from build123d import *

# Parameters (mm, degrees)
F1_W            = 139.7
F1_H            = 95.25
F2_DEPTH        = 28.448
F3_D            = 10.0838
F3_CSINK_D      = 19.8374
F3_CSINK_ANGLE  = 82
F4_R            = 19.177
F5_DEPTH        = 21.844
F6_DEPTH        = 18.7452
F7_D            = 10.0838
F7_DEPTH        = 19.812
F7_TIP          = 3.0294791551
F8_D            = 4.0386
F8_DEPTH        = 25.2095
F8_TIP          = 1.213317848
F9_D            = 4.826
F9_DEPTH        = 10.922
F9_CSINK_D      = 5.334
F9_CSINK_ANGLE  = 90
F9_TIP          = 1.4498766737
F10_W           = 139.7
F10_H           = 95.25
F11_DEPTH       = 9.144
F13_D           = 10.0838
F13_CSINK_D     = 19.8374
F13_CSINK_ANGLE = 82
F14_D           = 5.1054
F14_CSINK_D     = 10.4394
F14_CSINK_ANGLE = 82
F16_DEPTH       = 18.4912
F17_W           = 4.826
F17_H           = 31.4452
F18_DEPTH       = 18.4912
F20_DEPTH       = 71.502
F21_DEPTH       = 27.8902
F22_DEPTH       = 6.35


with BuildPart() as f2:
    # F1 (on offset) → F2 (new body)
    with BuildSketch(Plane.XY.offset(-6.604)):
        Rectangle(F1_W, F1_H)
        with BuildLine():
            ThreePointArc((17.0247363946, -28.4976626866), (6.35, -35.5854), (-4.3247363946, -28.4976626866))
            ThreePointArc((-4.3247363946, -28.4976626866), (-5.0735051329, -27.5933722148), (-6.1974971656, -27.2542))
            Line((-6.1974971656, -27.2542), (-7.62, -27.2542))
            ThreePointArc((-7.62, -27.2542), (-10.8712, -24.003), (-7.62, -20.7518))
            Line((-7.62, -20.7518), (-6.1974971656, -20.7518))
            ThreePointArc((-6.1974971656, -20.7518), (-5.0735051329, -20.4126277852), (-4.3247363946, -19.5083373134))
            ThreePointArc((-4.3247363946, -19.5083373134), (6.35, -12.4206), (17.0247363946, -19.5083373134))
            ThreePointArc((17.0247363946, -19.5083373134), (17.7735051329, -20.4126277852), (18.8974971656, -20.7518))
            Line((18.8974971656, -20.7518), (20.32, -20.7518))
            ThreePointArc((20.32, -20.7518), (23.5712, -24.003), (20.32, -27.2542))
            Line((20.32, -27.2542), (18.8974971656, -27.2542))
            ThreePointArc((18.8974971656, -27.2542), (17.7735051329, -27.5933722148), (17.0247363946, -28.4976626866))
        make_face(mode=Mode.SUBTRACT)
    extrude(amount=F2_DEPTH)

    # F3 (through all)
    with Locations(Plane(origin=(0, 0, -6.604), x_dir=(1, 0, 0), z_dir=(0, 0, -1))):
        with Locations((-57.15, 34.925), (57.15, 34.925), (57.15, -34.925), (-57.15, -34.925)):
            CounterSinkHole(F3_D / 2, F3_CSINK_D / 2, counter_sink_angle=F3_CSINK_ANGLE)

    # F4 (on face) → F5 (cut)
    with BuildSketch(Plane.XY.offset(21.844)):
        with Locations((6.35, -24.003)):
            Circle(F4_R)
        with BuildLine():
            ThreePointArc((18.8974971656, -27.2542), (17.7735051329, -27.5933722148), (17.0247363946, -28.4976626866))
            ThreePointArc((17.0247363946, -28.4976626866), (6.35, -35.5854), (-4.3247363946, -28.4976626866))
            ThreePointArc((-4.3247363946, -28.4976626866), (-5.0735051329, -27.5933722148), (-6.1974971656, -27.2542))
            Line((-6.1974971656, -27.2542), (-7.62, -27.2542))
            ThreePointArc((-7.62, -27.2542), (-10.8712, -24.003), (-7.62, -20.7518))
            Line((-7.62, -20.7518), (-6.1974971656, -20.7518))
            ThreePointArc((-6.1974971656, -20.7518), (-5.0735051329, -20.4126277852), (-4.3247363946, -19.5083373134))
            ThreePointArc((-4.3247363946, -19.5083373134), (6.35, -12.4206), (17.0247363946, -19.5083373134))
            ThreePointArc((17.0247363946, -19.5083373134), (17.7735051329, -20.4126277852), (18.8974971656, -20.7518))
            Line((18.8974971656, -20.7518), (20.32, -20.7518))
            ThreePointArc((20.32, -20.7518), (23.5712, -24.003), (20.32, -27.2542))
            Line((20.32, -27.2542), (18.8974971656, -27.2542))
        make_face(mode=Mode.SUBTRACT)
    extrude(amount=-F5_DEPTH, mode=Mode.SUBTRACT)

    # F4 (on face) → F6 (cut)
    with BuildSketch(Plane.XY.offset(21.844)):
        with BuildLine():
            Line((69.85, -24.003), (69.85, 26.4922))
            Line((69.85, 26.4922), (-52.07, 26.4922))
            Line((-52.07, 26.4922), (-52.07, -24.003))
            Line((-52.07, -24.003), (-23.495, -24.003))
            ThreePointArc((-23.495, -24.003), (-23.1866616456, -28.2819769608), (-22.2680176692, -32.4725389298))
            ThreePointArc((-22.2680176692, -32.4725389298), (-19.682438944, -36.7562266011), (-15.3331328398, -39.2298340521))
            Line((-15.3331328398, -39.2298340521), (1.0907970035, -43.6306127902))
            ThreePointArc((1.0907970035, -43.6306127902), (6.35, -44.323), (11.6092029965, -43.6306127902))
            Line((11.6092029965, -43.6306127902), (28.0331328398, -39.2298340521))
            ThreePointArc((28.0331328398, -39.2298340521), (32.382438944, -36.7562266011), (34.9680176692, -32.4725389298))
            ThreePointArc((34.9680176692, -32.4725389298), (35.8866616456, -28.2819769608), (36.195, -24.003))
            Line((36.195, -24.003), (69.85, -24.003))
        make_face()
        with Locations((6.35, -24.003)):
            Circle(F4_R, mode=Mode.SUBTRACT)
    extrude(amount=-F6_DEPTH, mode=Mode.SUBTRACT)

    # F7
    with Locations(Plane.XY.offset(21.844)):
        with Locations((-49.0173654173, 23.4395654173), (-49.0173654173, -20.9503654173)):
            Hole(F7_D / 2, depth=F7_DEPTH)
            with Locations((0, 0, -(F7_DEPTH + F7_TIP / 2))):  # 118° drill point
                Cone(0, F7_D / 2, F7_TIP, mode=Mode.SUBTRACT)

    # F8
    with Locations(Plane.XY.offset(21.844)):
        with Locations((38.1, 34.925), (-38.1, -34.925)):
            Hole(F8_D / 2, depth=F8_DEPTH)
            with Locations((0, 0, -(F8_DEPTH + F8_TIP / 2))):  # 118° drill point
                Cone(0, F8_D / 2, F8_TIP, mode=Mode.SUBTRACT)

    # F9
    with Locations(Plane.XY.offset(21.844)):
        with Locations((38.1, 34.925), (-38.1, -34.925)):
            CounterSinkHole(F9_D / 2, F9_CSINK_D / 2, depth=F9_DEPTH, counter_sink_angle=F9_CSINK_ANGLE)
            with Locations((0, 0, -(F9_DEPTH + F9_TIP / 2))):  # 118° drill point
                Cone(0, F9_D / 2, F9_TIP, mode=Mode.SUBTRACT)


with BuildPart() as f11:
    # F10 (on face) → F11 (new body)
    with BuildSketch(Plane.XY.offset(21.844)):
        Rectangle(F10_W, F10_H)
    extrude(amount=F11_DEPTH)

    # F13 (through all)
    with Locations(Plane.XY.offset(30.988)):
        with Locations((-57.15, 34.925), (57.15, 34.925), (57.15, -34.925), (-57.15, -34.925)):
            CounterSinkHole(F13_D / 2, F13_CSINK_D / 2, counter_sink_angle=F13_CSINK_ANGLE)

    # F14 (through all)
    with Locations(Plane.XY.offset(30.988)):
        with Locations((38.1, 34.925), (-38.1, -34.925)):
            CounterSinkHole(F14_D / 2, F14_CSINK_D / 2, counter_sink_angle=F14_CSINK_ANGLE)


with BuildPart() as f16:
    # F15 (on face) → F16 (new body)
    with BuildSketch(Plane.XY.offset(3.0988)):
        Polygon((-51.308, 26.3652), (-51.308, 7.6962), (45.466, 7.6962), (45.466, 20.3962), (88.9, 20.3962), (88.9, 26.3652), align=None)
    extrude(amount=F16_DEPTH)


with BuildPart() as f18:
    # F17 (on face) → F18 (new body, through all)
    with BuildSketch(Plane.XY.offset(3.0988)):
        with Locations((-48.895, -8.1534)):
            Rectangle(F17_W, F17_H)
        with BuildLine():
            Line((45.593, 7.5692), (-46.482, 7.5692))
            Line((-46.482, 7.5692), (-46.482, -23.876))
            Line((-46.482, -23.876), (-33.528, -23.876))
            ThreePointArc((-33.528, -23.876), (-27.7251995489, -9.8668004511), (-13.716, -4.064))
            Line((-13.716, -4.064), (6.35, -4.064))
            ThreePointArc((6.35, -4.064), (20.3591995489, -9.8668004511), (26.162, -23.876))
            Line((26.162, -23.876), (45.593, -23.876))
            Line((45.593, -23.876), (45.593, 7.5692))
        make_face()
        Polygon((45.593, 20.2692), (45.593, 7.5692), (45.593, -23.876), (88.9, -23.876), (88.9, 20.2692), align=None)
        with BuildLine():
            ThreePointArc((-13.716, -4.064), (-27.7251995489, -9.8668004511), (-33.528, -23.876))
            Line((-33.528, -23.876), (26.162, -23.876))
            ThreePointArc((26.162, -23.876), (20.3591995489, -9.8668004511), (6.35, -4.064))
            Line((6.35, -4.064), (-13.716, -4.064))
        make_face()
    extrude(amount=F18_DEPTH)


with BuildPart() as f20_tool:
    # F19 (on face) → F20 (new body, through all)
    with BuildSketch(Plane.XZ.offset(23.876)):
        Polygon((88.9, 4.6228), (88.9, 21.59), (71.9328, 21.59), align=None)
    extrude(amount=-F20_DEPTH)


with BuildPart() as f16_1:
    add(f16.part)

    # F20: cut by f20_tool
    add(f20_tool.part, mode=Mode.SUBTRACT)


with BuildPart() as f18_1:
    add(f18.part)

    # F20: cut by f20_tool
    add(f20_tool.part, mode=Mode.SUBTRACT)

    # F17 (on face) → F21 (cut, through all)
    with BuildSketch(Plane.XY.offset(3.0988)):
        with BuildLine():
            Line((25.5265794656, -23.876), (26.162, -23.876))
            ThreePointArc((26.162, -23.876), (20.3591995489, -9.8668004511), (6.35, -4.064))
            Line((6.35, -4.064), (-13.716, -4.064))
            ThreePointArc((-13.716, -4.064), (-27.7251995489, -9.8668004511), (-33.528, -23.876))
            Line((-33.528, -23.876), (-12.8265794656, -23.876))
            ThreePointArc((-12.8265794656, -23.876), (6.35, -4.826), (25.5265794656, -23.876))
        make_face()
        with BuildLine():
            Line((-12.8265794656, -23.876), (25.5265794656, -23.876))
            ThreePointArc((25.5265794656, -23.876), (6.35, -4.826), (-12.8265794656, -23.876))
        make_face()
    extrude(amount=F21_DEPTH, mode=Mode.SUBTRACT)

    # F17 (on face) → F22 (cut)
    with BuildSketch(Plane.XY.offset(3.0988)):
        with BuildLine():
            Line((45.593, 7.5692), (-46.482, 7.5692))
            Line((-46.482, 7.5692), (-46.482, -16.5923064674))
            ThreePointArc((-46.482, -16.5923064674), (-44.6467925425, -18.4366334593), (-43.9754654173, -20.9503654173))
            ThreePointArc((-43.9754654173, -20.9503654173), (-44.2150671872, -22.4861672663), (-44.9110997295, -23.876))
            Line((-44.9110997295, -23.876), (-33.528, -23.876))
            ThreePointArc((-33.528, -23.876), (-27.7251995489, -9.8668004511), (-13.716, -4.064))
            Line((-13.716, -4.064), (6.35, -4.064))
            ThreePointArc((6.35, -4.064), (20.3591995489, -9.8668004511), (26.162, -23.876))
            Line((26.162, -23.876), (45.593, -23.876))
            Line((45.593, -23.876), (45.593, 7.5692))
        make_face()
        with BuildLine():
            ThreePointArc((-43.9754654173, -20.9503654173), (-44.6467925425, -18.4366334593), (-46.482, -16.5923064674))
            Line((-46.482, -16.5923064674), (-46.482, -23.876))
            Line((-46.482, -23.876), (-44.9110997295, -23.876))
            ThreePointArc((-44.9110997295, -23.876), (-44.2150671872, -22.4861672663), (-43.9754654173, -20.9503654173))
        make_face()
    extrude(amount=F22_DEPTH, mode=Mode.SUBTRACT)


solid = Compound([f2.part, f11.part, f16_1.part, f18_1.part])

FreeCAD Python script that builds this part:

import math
import FreeCAD as App
import Part
import Sketcher
Q = App.Units.Quantity

doc = App.newDocument("Part")
body = doc.addObject("PartDesign::Body", "Body")

sketch1 = body.newObject("Sketcher::SketchObject", "Sketch")
sketch1.AttachmentSupport = (doc.getObject("XY_Plane"), [""])
sketch1.MapMode = "FlatFace"
sketch1.AttachmentOffset = App.Placement(App.Vector(0, 0, -0.26 * 25.4), App.Rotation())
sketch1.addGeometry([
    Part.LineSegment(App.Vector(-69.8, 47.6, 0), App.Vector(-69.8, -47.6, 0)),
    Part.LineSegment(App.Vector(-69.8, -47.6, 0), App.Vector(69.8, -47.6, 0)),
    Part.LineSegment(App.Vector(69.8, -47.6, 0), App.Vector(69.8, 47.6, 0)),
    Part.LineSegment(App.Vector(69.8, 47.6, 0), App.Vector(-69.8, 47.6, 0)),
    Part.ArcOfCircle(Part.Circle(App.Vector(18.9, -29.3, 0), App.Vector(0, 0, 1), 2), math.radians(90), math.radians(157)),
    Part.ArcOfCircle(Part.Circle(App.Vector(6.3, -24, 0), App.Vector(0, 0, 1), 11.6), math.radians(-157), math.radians(-23)),
    Part.ArcOfCircle(Part.Circle(App.Vector(-6.2, -29.3, 0), App.Vector(0, 0, 1), 2), math.radians(23), math.radians(90)),
    Part.LineSegment(App.Vector(-6.2, -27.3, 0), App.Vector(-7.6, -27.3, 0)),
    Part.ArcOfCircle(Part.Circle(App.Vector(-7.6, -24, 0), App.Vector(0, 0, 1), 3.3), math.radians(90), math.radians(270)),
    Part.LineSegment(App.Vector(-7.6, -20.8, 0), App.Vector(-6.2, -20.8, 0)),
    Part.ArcOfCircle(Part.Circle(App.Vector(-6.2, -18.7, 0), App.Vector(0, 0, 1), 2), math.radians(-90), math.radians(-23)),
    Part.ArcOfCircle(Part.Circle(App.Vector(6.3, -24, 0), App.Vector(0, 0, 1), 11.6), math.radians(23), math.radians(157)),
    Part.ArcOfCircle(Part.Circle(App.Vector(18.9, -18.7, 0), App.Vector(0, 0, 1), 2), math.radians(-157), math.radians(-90)),
    Part.LineSegment(App.Vector(18.9, -20.8, 0), App.Vector(20.3, -20.8, 0)),
    Part.ArcOfCircle(Part.Circle(App.Vector(20.3, -24, 0), App.Vector(0, 0, 1), 3.3), math.radians(-90), math.radians(90)),
    Part.LineSegment(App.Vector(20.3, -27.3, 0), App.Vector(18.9, -27.3, 0)),
], False)
sketch1.addConstraint([
    Sketcher.Constraint("Coincident", 0, 2, 1, 1),
    Sketcher.Constraint("Coincident", 1, 2, 2, 1),
    Sketcher.Constraint("Coincident", 2, 2, 3, 1),
    Sketcher.Constraint("Coincident", 3, 2, 0, 1),
    Sketcher.Constraint("Tangent", 4, 2, 5, 2),
    Sketcher.Constraint("Tangent", 5, 1, 6, 1),
    Sketcher.Constraint("Tangent", 6, 2, 7, 1),
    Sketcher.Constraint("Tangent", 7, 2, 8, 2),
    Sketcher.Constraint("Tangent", 8, 1, 9, 1),
    Sketcher.Constraint("Tangent", 9, 2, 10, 1),
    Sketcher.Constraint("Tangent", 10, 2, 11, 2),
    Sketcher.Constraint("Tangent", 11, 1, 12, 1),
    Sketcher.Constraint("Tangent", 12, 2, 13, 1),
    Sketcher.Constraint("Tangent", 13, 2, 14, 2),
    Sketcher.Constraint("Tangent", 14, 1, 15, 1),
    Sketcher.Constraint("Tangent", 15, 2, 4, 1),
    Sketcher.Constraint("Vertical", 0),
    Sketcher.Constraint("Horizontal", 1),
    Sketcher.Constraint("Vertical", 2),
    Sketcher.Constraint("Horizontal", 3),
    Sketcher.Constraint("Horizontal", 7),
    Sketcher.Constraint("Horizontal", 9),
    Sketcher.Constraint("Horizontal", 13),
    Sketcher.Constraint("Horizontal", 15),
    Sketcher.Constraint("Coincident", 11, 3, 5, 3),
    Sketcher.Constraint("Equal", 4, 6),
    Sketcher.Constraint("Equal", 6, 10),
    Sketcher.Constraint("Equal", 5, 11),
    Sketcher.Constraint("Equal", 10, 12),
    Sketcher.Constraint("Equal", 8, 14),
    Sketcher.Constraint("Symmetric", 0, 2, 2, 2, -1, 1),
    Sketcher.Constraint("Horizontal", 4, 3, 6, 3),
    Sketcher.Constraint("Horizontal", 5, 3, 8, 3),
    Sketcher.Constraint("Equal", 9, 13),
    Sketcher.Constraint("Radius", 4, Q("0.08 in")),
    Sketcher.Constraint("DistanceX", 1, 1, 1, 2, Q("5.5 in")),
    Sketcher.Constraint("Radius", 5, Q("0.456 in")),
    Sketcher.Constraint("Radius", 8, Q("0.128 in")),
    Sketcher.Constraint("DistanceX", 0, 2, 5, 3, Q("3 in")),
    Sketcher.Constraint("DistanceY", 0, 2, 0, 1, Q("3.75 in")),
    Sketcher.Constraint("DistanceX", 8, 3, -1, 1, Q("0.3 in")),
    Sketcher.Constraint("DistanceY", 0, 2, 8, 3, Q("0.93 in")),
])
pad1 = body.newObject("PartDesign::Pad", "Pad")
pad1.Profile = sketch1
pad1.Length = Q("1.12 in")

sketch2 = body.newObject("Sketcher::SketchObject", "Sketch001")
sketch2.AttachmentSupport = (doc.getObject("XY_Plane"), [""])
sketch2.MapMode = "FlatFace"
sketch2.AttachmentOffset = App.Placement(App.Vector(0, 0, -0.26 * 25.4), App.Rotation())
sketch2.addGeometry([
    Part.Circle(App.Vector(-57, -35, 0), App.Vector(0, 0, 1), 5),
    Part.Circle(App.Vector(57, -35, 0), App.Vector(0, 0, 1), 5),
    Part.Circle(App.Vector(57, 35, 0), App.Vector(0, 0, 1), 5),
    Part.Circle(App.Vector(-57, 35, 0), App.Vector(0, 0, 1), 5),
], False)
sketch2.addConstraint([
    Sketcher.Constraint("Equal", 0, 1),
    Sketcher.Constraint("Equal", 1, 2),
    Sketcher.Constraint("Equal", 2, 3),
    Sketcher.Constraint("Symmetric", 0, 3, 2, 3, -1, 1),
    Sketcher.Constraint("Symmetric", 1, 3, 3, 3, -1, 1),
    Sketcher.Constraint("Symmetric", 0, 3, 1, 3, -2),
    Sketcher.Constraint("Diameter", 0, Q("0.397 in")),
    Sketcher.Constraint("DistanceX", 0, 3, 1, 3, Q("4.5 in")),
    Sketcher.Constraint("DistanceY", 1, 3, 2, 3, Q("2.75 in")),
])
doc.recompute()
hole = body.newObject("PartDesign::Hole", "Hole")
hole.Profile = sketch2
hole.ThreadType = "None"
hole.Diameter = Q("0.397 in")
hole.DepthType = "ThroughAll"
hole.HoleCutType = "Countersink"
hole.HoleCutDiameter = Q("0.781 in")
hole.HoleCutCountersinkAngle = 82
hole.Reversed = True

sketch3 = body.newObject("Sketcher::SketchObject", "Sketch002")
sketch3.AttachmentSupport = (doc.getObject("XY_Plane"), [""])
sketch3.MapMode = "FlatFace"
sketch3.AttachmentOffset = App.Placement(App.Vector(0, 0, 0.86 * 25.4), App.Rotation())
sketch3.addGeometry([
    Part.Circle(App.Vector(6.3, -24, 0), App.Vector(0, 0, 1), 19.2),
    Part.LineSegment(App.Vector(20.3, -27.3, 0), App.Vector(18.9, -27.3, 0)),
    Part.ArcOfCircle(Part.Circle(App.Vector(18.9, -29.3, 0), App.Vector(0, 0, 1), 2), math.radians(90), math.radians(157)),
    Part.ArcOfCircle(Part.Circle(App.Vector(6.3, -24, 0), App.Vector(0, 0, 1), 11.6), math.radians(-157), math.radians(-23)),
    Part.ArcOfCircle(Part.Circle(App.Vector(-6.2, -29.3, 0), App.Vector(0, 0, 1), 2), math.radians(23), math.radians(90)),
    Part.LineSegment(App.Vector(-6.2, -27.3, 0), App.Vector(-7.6, -27.3, 0)),
    Part.ArcOfCircle(Part.Circle(App.Vector(-7.6, -24, 0), App.Vector(0, 0, 1), 3.3), math.radians(90), math.radians(270)),
    Part.LineSegment(App.Vector(-7.6, -20.8, 0), App.Vector(-6.2, -20.8, 0)),
    Part.ArcOfCircle(Part.Circle(App.Vector(-6.2, -18.7, 0), App.Vector(0, 0, 1), 2), math.radians(-90), math.radians(-23)),
    Part.ArcOfCircle(Part.Circle(App.Vector(6.3, -24, 0), App.Vector(0, 0, 1), 11.6), math.radians(23), math.radians(157)),
    Part.ArcOfCircle(Part.Circle(App.Vector(18.9, -18.7, 0), App.Vector(0, 0, 1), 2), math.radians(-157), math.radians(-90)),
    Part.LineSegment(App.Vector(18.9, -20.8, 0), App.Vector(20.3, -20.8, 0)),
    Part.ArcOfCircle(Part.Circle(App.Vector(20.3, -24, 0), App.Vector(0, 0, 1), 3.3), math.radians(-90), math.radians(90)),
], False)
sketch3.addConstraint([
    Sketcher.Constraint("Tangent", 1, 2, 2, 1),
    Sketcher.Constraint("Tangent", 2, 2, 3, 2),
    Sketcher.Constraint("Tangent", 3, 1, 4, 1),
    Sketcher.Constraint("Tangent", 4, 2, 5, 1),
    Sketcher.Constraint("Tangent", 5, 2, 6, 2),
    Sketcher.Constraint("Tangent", 6, 1, 7, 1),
    Sketcher.Constraint("Tangent", 7, 2, 8, 1),
    Sketcher.Constraint("Tangent", 8, 2, 9, 2),
    Sketcher.Constraint("Tangent", 9, 1, 10, 1),
    Sketcher.Constraint("Tangent", 10, 2, 11, 1),
    Sketcher.Constraint("Tangent", 11, 2, 12, 2),
    Sketcher.Constraint("Tangent", 12, 1, 1, 1),
    Sketcher.Constraint("Horizontal", 1),
    Sketcher.Constraint("Horizontal", 5),
    Sketcher.Constraint("Horizontal", 7),
    Sketcher.Constraint("Horizontal", 11),
    Sketcher.Constraint("Coincident", 3, 3, 0, 3),
    Sketcher.Constraint("Coincident", 9, 3, 0, 3),
    Sketcher.Constraint("Equal", 2, 4),
    Sketcher.Constraint("Equal", 4, 8),
    Sketcher.Constraint("Equal", 3, 9),
    Sketcher.Constraint("Equal", 8, 10),
    Sketcher.Constraint("Equal", 6, 12),
    Sketcher.Constraint("Horizontal", 2, 3, 4, 3),
    Sketcher.Constraint("Horizontal", 3, 3, 6, 3),
    Sketcher.Constraint("Equal", 1, 5),
    Sketcher.Constraint("Diameter", 0, Q("1.51 in")),
    Sketcher.Constraint("Radius", 2, Q("0.08 in")),
    Sketcher.Constraint("Radius", 3, Q("0.456 in")),
    Sketcher.Constraint("Radius", 6, Q("0.128 in")),
    Sketcher.Constraint("DistanceX", 6, 3, -1, 1, Q("0.3 in")),
    Sketcher.Constraint("DistanceX", -1, 1, 12, 3, Q("0.8 in")),
    Sketcher.Constraint("DistanceY", 0, 3, -1, 1, Q("0.945 in")),
])
pocket1 = body.newObject("PartDesign::Pocket", "Pocket")
pocket1.Profile = sketch3
pocket1.Length = Q("0.86 in")

sketch4 = body.newObject("Sketcher::SketchObject", "Sketch003")
sketch4.AttachmentSupport = (doc.getObject("XY_Plane"), [""])
sketch4.MapMode = "FlatFace"
sketch4.AttachmentOffset = App.Placement(App.Vector(0, 0, 0.86 * 25.4), App.Rotation())
sketch4.addGeometry([
    Part.LineSegment(App.Vector(70, -24, 0), App.Vector(70, 26, 0)),
    Part.LineSegment(App.Vector(70, 26, 0), App.Vector(-52, 26, 0)),
    Part.LineSegment(App.Vector(-52, 26, 0), App.Vector(-52, -24, 0)),
    Part.LineSegment(App.Vector(-52, -24, 0), App.Vector(-23, -24, 0)),
    Part.ArcOfCircle(Part.Circle(App.Vector(6, -24, 0), App.Vector(0, 0, 1), 30), math.radians(180), math.radians(196.49)),
    Part.ArcOfCircle(Part.Circle(App.Vector(-13, -30, 0), App.Vector(0, 0, 1), 10), math.radians(-164), math.radians(-105)),
    Part.LineSegment(App.Vector(-15, -39, 0), App.Vector(1, -44, 0)),
    Part.ArcOfCircle(Part.Circle(App.Vector(6, -24, 0), App.Vector(0, 0, 1), 20), math.radians(-105), math.radians(-75)),
    Part.LineSegment(App.Vector(12, -44, 0), App.Vector(28, -39, 0)),
    Part.ArcOfCircle(Part.Circle(App.Vector(25, -30, 0), App.Vector(0, 0, 1), 10), math.radians(-75), math.radians(-16)),
    Part.ArcOfCircle(Part.Circle(App.Vector(6, -24, 0), App.Vector(0, 0, 1), 30), math.radians(-16.49), math.radians(0)),
    Part.LineSegment(App.Vector(36, -24, 0), App.Vector(70, -24, 0)),
    Part.Circle(App.Vector(6, -24, 0), App.Vector(0, 0, 1), 19),
], False)
sketch4.addConstraint([
    Sketcher.Constraint("Coincident", 0, 2, 1, 1),
    Sketcher.Constraint("Coincident", 1, 2, 2, 1),
    Sketcher.Constraint("Coincident", 2, 2, 3, 1),
    Sketcher.Constraint("Coincident", 3, 2, 4, 1),
    Sketcher.Constraint("Tangent", 4, 2, 5, 1),
    Sketcher.Constraint("Tangent", 5, 2, 6, 1),
    Sketcher.Constraint("Tangent", 6, 2, 7, 1),
    Sketcher.Constraint("Tangent", 7, 2, 8, 1),
    Sketcher.Constraint("Tangent", 8, 2, 9, 1),
    Sketcher.Constraint("Tangent", 9, 2, 10, 1),
    Sketcher.Constraint("Coincident", 10, 2, 11, 1),
    Sketcher.Constraint("Coincident", 11, 2, 0, 1),
    Sketcher.Constraint("Vertical", 0),
    Sketcher.Constraint("Horizontal", 1),
    Sketcher.Constraint("Vertical", 2),
    Sketcher.Constraint("Horizontal", 3),
    Sketcher.Constraint("Horizontal", 11),
    Sketcher.Constraint("Coincident", 7, 3, 4, 3),
    Sketcher.Constraint("Coincident", 10, 3, 4, 3),
    Sketcher.Constraint("Coincident", 12, 3, 4, 3),
    Sketcher.Constraint("Equal", 5, 9),
    Sketcher.Constraint("Equal", 4, 10),
    Sketcher.Constraint("Horizontal", 5, 3, 9, 3),
    Sketcher.Constraint("Horizontal", 12, 3, 2, 2),
    Sketcher.Constraint("Horizontal", 3, 2, 10, 2),
    Sketcher.Constraint("Radius", 7, Q("0.8 in")),
    Sketcher.Constraint("Diameter", 12, Q("1.51 in")),
    Sketcher.Constraint("Radius", 5, Q("0.39 in")),
    Sketcher.Constraint("DistanceX", 1, 2, 1, 1, Q("4.8 in")),
    Sketcher.Constraint("Angle", 6, Q("-15 deg")),
    Sketcher.Constraint("Radius", 4, Q("1.175 in")),
    Sketcher.Constraint("DistanceX", 4, 3, 0, 2, Q("2.5 in")),
    Sketcher.Constraint("DistanceY", 0, 1, 0, 2, Q("1.988 in")),
    Sketcher.Constraint("DistanceX", -1, 1, 4, 3, Q("0.25 in")),
    Sketcher.Constraint("DistanceY", 4, 3, -1, 1, Q("0.945 in")),
])
pocket2 = body.newObject("PartDesign::Pocket", "Pocket001")
pocket2.Profile = sketch4
pocket2.Length = Q("0.738 in")

sketch5 = body.newObject("Sketcher::SketchObject", "Sketch004")
sketch5.AttachmentSupport = (doc.getObject("XY_Plane"), [""])
sketch5.MapMode = "FlatFace"
sketch5.AttachmentOffset = App.Placement(App.Vector(0, 0, 0.86 * 25.4), App.Rotation())
sketch5.addGeometry([
    Part.Circle(App.Vector(-49, 23, 0), App.Vector(0, 0, 1), 5),
    Part.Circle(App.Vector(-49, -21, 0), App.Vector(0, 0, 1), 5),
], False)
sketch5.addConstraint([
    Sketcher.Constraint("Equal", 0, 1),
    Sketcher.Constraint("Vertical", 0, 3, 1, 3),
    Sketcher.Constraint("Diameter", 0, Q("0.397 in")),
    Sketcher.Constraint("DistanceY", 1, 3, 0, 3, Q("44.389931 mm")),
    Sketcher.Constraint("DistanceX", 0, 3, -1, 1, Q("49.017365 mm")),
    Sketcher.Constraint("DistanceY", -1, 1, 0, 3, Q("23.439565 mm")),
])
doc.recompute()
hole2 = body.newObject("PartDesign::Hole", "Hole001")
hole2.Profile = sketch5
hole2.ThreadType = "None"
hole2.Diameter = Q("0.397 in")
hole2.DepthType = "Dimension"
hole2.Depth = Q("0.78 in")
hole2.DrillPoint = "Angled"
hole2.DrillPointAngle = 118

sketch6 = body.newObject("Sketcher::SketchObject", "Sketch005")
sketch6.AttachmentSupport = (doc.getObject("XY_Plane"), [""])
sketch6.MapMode = "FlatFace"
sketch6.AttachmentOffset = App.Placement(App.Vector(0, 0, 0.86 * 25.4), App.Rotation())
sketch6.addGeometry([
    Part.Circle(App.Vector(38.1, 34.9, 0), App.Vector(0, 0, 1), 2),
    Part.Circle(App.Vector(-38.1, -34.9, 0), App.Vector(0, 0, 1), 2),
], False)
sketch6.addConstraint([
    Sketcher.Constraint("Equal", 0, 1),
    Sketcher.Constraint("Symmetric", 0, 3, 1, 3, -1, 1),
    Sketcher.Constraint("Diameter", 0, Q("0.159 in")),
    Sketcher.Constraint("DistanceX", 1, 3, 0, 3, Q("3 in")),
    Sketcher.Constraint("DistanceY", 1, 3, 0, 3, Q("2.75 in")),
])
doc.recompute()
hole3 = body.newObject("PartDesign::Hole", "Hole002")
hole3.Profile = sketch6
hole3.ThreadType = "None"
hole3.Diameter = Q("0.159 in")
hole3.DepthType = "Dimension"
hole3.Depth = Q("0.9925 in")
hole3.DrillPoint = "Angled"
hole3.DrillPointAngle = 118

sketch7 = body.newObject("Sketcher::SketchObject", "Sketch006")
sketch7.AttachmentSupport = (doc.getObject("XY_Plane"), [""])
sketch7.MapMode = "FlatFace"
sketch7.AttachmentOffset = App.Placement(App.Vector(0, 0, 0.86 * 25.4), App.Rotation())
sketch7.addGeometry([
    Part.Circle(App.Vector(38.1, 34.9, 0), App.Vector(0, 0, 1), 2.4),
    Part.Circle(App.Vector(-38.1, -34.9, 0), App.Vector(0, 0, 1), 2.4),
], False)
sketch7.addConstraint([
    Sketcher.Constraint("Equal", 0, 1),
    Sketcher.Constraint("Symmetric", 0, 3, 1, 3, -1, 1),
    Sketcher.Constraint("Diameter", 0, Q("0.19 in")),
    Sketcher.Constraint("DistanceX", 1, 3, 0, 3, Q("3 in")),
    Sketcher.Constraint("DistanceY", 1, 3, 0, 3, Q("2.75 in")),
])
doc.recompute()
hole4 = body.newObject("PartDesign::Hole", "Hole003")
hole4.Profile = sketch7
hole4.ThreadType = "None"
hole4.Diameter = Q("0.19 in")
hole4.DepthType = "Dimension"
hole4.Depth = Q("0.43 in")
hole4.DrillPoint = "Angled"
hole4.DrillPointAngle = 118
hole4.HoleCutType = "Countersink"
hole4.HoleCutDiameter = Q("0.21 in")
hole4.HoleCutCountersinkAngle = 90
body2 = doc.addObject("PartDesign::Body", "Body001")

sketch8 = body2.newObject("Sketcher::SketchObject", "Sketch007")
sketch8.AttachmentSupport = (doc.getObject("XY_Plane001"), [""])
sketch8.MapMode = "FlatFace"
sketch8.AttachmentOffset = App.Placement(App.Vector(0, 0, 0.86 * 25.4), App.Rotation())
sketch8.addGeometry([
    Part.LineSegment(App.Vector(-70, 48, 0), App.Vector(-70, -48, 0)),
    Part.LineSegment(App.Vector(-70, -48, 0), App.Vector(70, -48, 0)),
    Part.LineSegment(App.Vector(70, -48, 0), App.Vector(70, 48, 0)),
    Part.LineSegment(App.Vector(70, 48, 0), App.Vector(-70, 48, 0)),
], False)
sketch8.addConstraint([
    Sketcher.Constraint("Coincident", 0, 2, 1, 1),
    Sketcher.Constraint("Coincident", 1, 2, 2, 1),
    Sketcher.Constraint("Coincident", 2, 2, 3, 1),
    Sketcher.Constraint("Coincident", 3, 2, 0, 1),
    Sketcher.Constraint("Vertical", 0),
    Sketcher.Constraint("Horizontal", 1),
    Sketcher.Constraint("Vertical", 2),
    Sketcher.Constraint("Horizontal", 3),
    Sketcher.Constraint("Symmetric", 0, 2, 2, 2, -1, 1),
    Sketcher.Constraint("DistanceX", 1, 1, 1, 2, Q("5.5 in")),
    Sketcher.Constraint("DistanceY", 0, 2, 0, 1, Q("3.75 in")),
])
pad2 = body2.newObject("PartDesign::Pad", "Pad001")
pad2.Profile = sketch8
pad2.Length = Q("0.36 in")

sketch9 = body2.newObject("Sketcher::SketchObject", "Sketch008")
sketch9.AttachmentSupport = (doc.getObject("XY_Plane001"), [""])
sketch9.MapMode = "FlatFace"
sketch9.AttachmentOffset = App.Placement(App.Vector(0, 0, 1.22 * 25.4), App.Rotation())
sketch9.addGeometry([
    Part.Circle(App.Vector(-57, 35, 0), App.Vector(0, 0, 1), 5),
    Part.Circle(App.Vector(57, 35, 0), App.Vector(0, 0, 1), 5),
    Part.Circle(App.Vector(57, -35, 0), App.Vector(0, 0, 1), 5),
    Part.Circle(App.Vector(-57, -35, 0), App.Vector(0, 0, 1), 5),
], False)
sketch9.addConstraint([
    Sketcher.Constraint("Equal", 0, 1),
    Sketcher.Constraint("Equal", 1, 2),
    Sketcher.Constraint("Equal", 2, 3),
    Sketcher.Constraint("Symmetric", 0, 3, 2, 3, -1, 1),
    Sketcher.Constraint("Symmetric", 1, 3, 3, 3, -1, 1),
    Sketcher.Constraint("Symmetric", 0, 3, 1, 3, -2),
    Sketcher.Constraint("Diameter", 0, Q("0.397 in")),
    Sketcher.Constraint("DistanceX", 0, 3, 1, 3, Q("4.5 in")),
    Sketcher.Constraint("DistanceY", 2, 3, 1, 3, Q("2.75 in")),
])
doc.recompute()
hole5 = body2.newObject("PartDesign::Hole", "Hole004")
hole5.Profile = sketch9
hole5.ThreadType = "None"
hole5.Diameter = Q("0.397 in")
hole5.DepthType = "ThroughAll"
hole5.HoleCutType = "Countersink"
hole5.HoleCutDiameter = Q("0.781 in")
hole5.HoleCutCountersinkAngle = 82

sketch10 = body2.newObject("Sketcher::SketchObject", "Sketch009")
sketch10.AttachmentSupport = (doc.getObject("XY_Plane001"), [""])
sketch10.MapMode = "FlatFace"
sketch10.AttachmentOffset = App.Placement(App.Vector(0, 0, 1.22 * 25.4), App.Rotation())
sketch10.addGeometry([
    Part.Circle(App.Vector(38.1, 34.9, 0), App.Vector(0, 0, 1), 2.6),
    Part.Circle(App.Vector(-38.1, -34.9, 0), App.Vector(0, 0, 1), 2.6),
], False)
sketch10.addConstraint([
    Sketcher.Constraint("Equal", 0, 1),
    Sketcher.Constraint("Symmetric", 0, 3, 1, 3, -1, 1),
    Sketcher.Constraint("Diameter", 0, Q("0.201 in")),
    Sketcher.Constraint("DistanceX", 1, 3, 0, 3, Q("3 in")),
    Sketcher.Constraint("DistanceY", 1, 3, 0, 3, Q("2.75 in")),
])
doc.recompute()
hole6 = body2.newObject("PartDesign::Hole", "Hole005")
hole6.Profile = sketch10
hole6.ThreadType = "None"
hole6.Diameter = Q("0.201 in")
hole6.DepthType = "ThroughAll"
hole6.HoleCutType = "Countersink"
hole6.HoleCutDiameter = Q("0.411 in")
hole6.HoleCutCountersinkAngle = 82
body3 = doc.addObject("PartDesign::Body", "Body002")

sketch11 = body3.newObject("Sketcher::SketchObject", "Sketch010")
sketch11.AttachmentSupport = (doc.getObject("XY_Plane002"), [""])
sketch11.MapMode = "FlatFace"
sketch11.AttachmentOffset = App.Placement(App.Vector(0, 0, 0.122 * 25.4), App.Rotation())
sketch11.addGeometry([
    Part.LineSegment(App.Vector(-51, 26, 0), App.Vector(-51, 8, 0)),
    Part.LineSegment(App.Vector(-51, 8, 0), App.Vector(45, 8, 0)),
    Part.LineSegment(App.Vector(45, 8, 0), App.Vector(45, 20, 0)),
    Part.LineSegment(App.Vector(45, 20, 0), App.Vector(89, 20, 0)),
    Part.LineSegment(App.Vector(89, 20, 0), App.Vector(89, 26, 0)),
    Part.LineSegment(App.Vector(89, 26, 0), App.Vector(-51, 26, 0)),
], False)
sketch11.addConstraint([
    Sketcher.Constraint("Coincident", 0, 2, 1, 1),
    Sketcher.Constraint("Coincident", 1, 2, 2, 1),
    Sketcher.Constraint("Coincident", 2, 2, 3, 1),
    Sketcher.Constraint("Coincident", 3, 2, 4, 1),
    Sketcher.Constraint("Coincident", 4, 2, 5, 1),
    Sketcher.Constraint("Coincident", 5, 2, 0, 1),
    Sketcher.Constraint("Vertical", 0),
    Sketcher.Constraint("Horizontal", 1),
    Sketcher.Constraint("Vertical", 2),
    Sketcher.Constraint("Horizontal", 3),
    Sketcher.Constraint("Vertical", 4),
    Sketcher.Constraint("Horizontal", 5),
    Sketcher.Constraint("DistanceY", 2, 1, 2, 2, Q("0.5 in")),
    Sketcher.Constraint("DistanceX", 1, 1, 1, 2, Q("3.81 in")),
    Sketcher.Constraint("DistanceX", 3, 1, 3, 2, Q("1.71 in")),
    Sketcher.Constraint("DistanceX", -1, 1, 3, 2, Q("3.5 in")),
    Sketcher.Constraint("DistanceY", 0, 2, 0, 1, Q("0.735 in")),
    Sketcher.Constraint("DistanceY", -1, 1, 0, 2, Q("0.303 in")),
])
pad3 = body3.newObject("PartDesign::Pad", "Pad002")
pad3.Profile = sketch11
pad3.Length = Q("0.728 in")
body4 = doc.addObject("PartDesign::Body", "Body003")

sketch12 = body4.newObject("Sketcher::SketchObject", "Sketch011")
sketch12.AttachmentSupport = (doc.getObject("XY_Plane003"), [""])
sketch12.MapMode = "FlatFace"
sketch12.AttachmentOffset = App.Placement(App.Vector(0, 0, 0.122 * 25.4), App.Rotation())
sketch12.addGeometry([
    Part.LineSegment(App.Vector(-51, 8, 0), App.Vector(-51, -24, 0)),
    Part.LineSegment(App.Vector(-51, -24, 0), App.Vector(89, -24, 0)),
    Part.LineSegment(App.Vector(89, -24, 0), App.Vector(89, 20, 0)),
    Part.LineSegment(App.Vector(89, 20, 0), App.Vector(46, 20, 0)),
    Part.LineSegment(App.Vector(46, 20, 0), App.Vector(46, 8, 0)),
    Part.LineSegment(App.Vector(46, 8, 0), App.Vector(-51, 8, 0)),
], False)
sketch12.addConstraint([
    Sketcher.Constraint("Coincident", 0, 2, 1, 1),
    Sketcher.Constraint("Coincident", 1, 2, 2, 1),
    Sketcher.Constraint("Coincident", 2, 2, 3, 1),
    Sketcher.Constraint("Coincident", 3, 2, 4, 1),
    Sketcher.Constraint("Coincident", 4, 2, 5, 1),
    Sketcher.Constraint("Coincident", 5, 2, 0, 1),
    Sketcher.Constraint("Vertical", 0),
    Sketcher.Constraint("Horizontal", 1),
    Sketcher.Constraint("Vertical", 2),
    Sketcher.Constraint("Horizontal", 3),
    Sketcher.Constraint("Vertical", 4),
    Sketcher.Constraint("Horizontal", 5),
    Sketcher.Constraint("DistanceY", 4, 2, 4, 1, Q("0.5 in")),
    Sketcher.Constraint("DistanceX", 1, 1, 1, 2, Q("5.52 in")),
    Sketcher.Constraint("DistanceX", -1, 1, 1, 2, Q("3.5 in")),
    Sketcher.Constraint("DistanceX", 3, 2, 3, 1, Q("1.705 in")),
    Sketcher.Constraint("DistanceY", 0, 2, 0, 1, Q("1.238 in")),
    Sketcher.Constraint("DistanceY", 0, 2, -1, 1, Q("0.94 in")),
])
pad4 = body4.newObject("PartDesign::Pad", "Pad003")
pad4.Profile = sketch12
pad4.Length = Q("0.728 in")
body5 = doc.addObject("PartDesign::Body", "Body004")

sketch13 = body5.newObject("Sketcher::SketchObject", "Sketch012")
sketch13.AttachmentSupport = (doc.getObject("XZ_Plane004"), [""])
sketch13.MapMode = "FlatFace"
sketch13.AttachmentOffset = App.Placement(App.Vector(0, 0, 0.94 * 25.4), App.Rotation())
sketch13.addGeometry([
    Part.LineSegment(App.Vector(89, 5, 0), App.Vector(89, 22, 0)),
    Part.LineSegment(App.Vector(89, 22, 0), App.Vector(72, 22, 0)),
    Part.LineSegment(App.Vector(72, 22, 0), App.Vector(89, 5, 0)),
], False)
sketch13.addConstraint([
    Sketcher.Constraint("Coincident", 0, 2, 1, 1),
    Sketcher.Constraint("Coincident", 1, 2, 2, 1),
    Sketcher.Constraint("Coincident", 2, 2, 0, 1),
    Sketcher.Constraint("Vertical", 0),
    Sketcher.Constraint("Horizontal", 1),
    Sketcher.Constraint("Equal", 1, 0),
    Sketcher.Constraint("DistanceX", -1, 1, 0, 2, Q("3.5 in")),
    Sketcher.Constraint("DistanceX", 1, 2, 1, 1, Q("0.668 in")),
    Sketcher.Constraint("DistanceY", -1, 1, 0, 2, Q("0.85 in")),
])
pad5 = body5.newObject("PartDesign::Pad", "Pad004")
pad5.Profile = sketch13
pad5.Length = 71.502
pad5.Reversed = True
doc.recompute()

body6 = doc.addObject("PartDesign::Body", "Body005")
body6.BaseFeature = body5
boolean = body3.newObject("PartDesign::Boolean", "Boolean")
boolean.Type = "Cut"
boolean.addObjects([body6])
doc.recompute()

boolean2 = body4.newObject("PartDesign::Boolean", "Boolean001")
boolean2.Type = "Cut"
boolean2.addObjects([body5])

sketch14 = body4.newObject("Sketcher::SketchObject", "Sketch013")
sketch14.AttachmentSupport = (doc.getObject("XY_Plane003"), [""])
sketch14.MapMode = "FlatFace"
sketch14.AttachmentOffset = App.Placement(App.Vector(0, 0, 0.122 * 25.4), App.Rotation())
sketch14.addGeometry([
    Part.ArcOfCircle(Part.Circle(App.Vector(6, -24, 0), App.Vector(0, 0, 1), 20), math.radians(0), math.radians(90)),
    Part.LineSegment(App.Vector(6, -4, 0), App.Vector(-14, -4, 0)),
    Part.ArcOfCircle(Part.Circle(App.Vector(-14, -24, 0), App.Vector(0, 0, 1), 20), math.radians(90), math.radians(180)),
    Part.LineSegment(App.Vector(-34, -24, 0), App.Vector(26, -24, 0)),
], False)
sketch14.addConstraint([
    Sketcher.Constraint("Tangent", 0, 2, 1, 1),
    Sketcher.Constraint("Tangent", 1, 2, 2, 1),
    Sketcher.Constraint("Coincident", 2, 2, 3, 1),
    Sketcher.Constraint("Coincident", 3, 2, 0, 1),
    Sketcher.Constraint("Horizontal", 1),
    Sketcher.Constraint("Horizontal", 3),
    Sketcher.Constraint("Equal", 0, 2),
    Sketcher.Constraint("Horizontal", 0, 3, 2, 2),
    Sketcher.Constraint("Radius", 0, Q("0.78 in")),
    Sketcher.Constraint("DistanceX", 1, 2, 1, 1, Q("0.79 in")),
    Sketcher.Constraint("DistanceX", -1, 1, 0, 3, Q("0.25 in")),
    Sketcher.Constraint("DistanceY", 0, 3, -1, 1, Q("0.94 in")),
])
pocket3 = body4.newObject("PartDesign::Pocket", "Pocket002")
pocket3.Profile = sketch14
pocket3.Type = "ThroughAll"
pocket3.Reversed = True

sketch15 = body4.newObject("Sketcher::SketchObject", "Sketch014")
sketch15.AttachmentSupport = (doc.getObject("XY_Plane003"), [""])
sketch15.MapMode = "FlatFace"
sketch15.AttachmentOffset = App.Placement(App.Vector(0, 0, 0.122 * 25.4), App.Rotation())
sketch15.addGeometry([
    Part.LineSegment(App.Vector(46, 8, 0), App.Vector(-46, 8, 0)),
    Part.LineSegment(App.Vector(-46, 8, 0), App.Vector(-46, -24, 0)),
    Part.LineSegment(App.Vector(-46, -24, 0), App.Vector(-34, -24, 0)),
    Part.ArcOfCircle(Part.Circle(App.Vector(-14, -24, 0), App.Vector(0, 0, 1), 20), math.radians(90), math.radians(180)),
    Part.LineSegment(App.Vector(-14, -4, 0), App.Vector(6, -4, 0)),
    Part.ArcOfCircle(Part.Circle(App.Vector(6, -24, 0), App.Vector(0, 0, 1), 20), math.radians(0), math.radians(90)),
    Part.LineSegment(App.Vector(26, -24, 0), App.Vector(46, -24, 0)),
    Part.LineSegment(App.Vector(46, -24, 0), App.Vector(46, 8, 0)),
], False)
sketch15.addConstraint([
    Sketcher.Constraint("Coincident", 0, 2, 1, 1),
    Sketcher.Constraint("Coincident", 1, 2, 2, 1),
    Sketcher.Constraint("Coincident", 2, 2, 3, 2),
    Sketcher.Constraint("Tangent", 3, 1, 4, 1),
    Sketcher.Constraint("Tangent", 4, 2, 5, 2),
    Sketcher.Constraint("Coincident", 5, 1, 6, 1),
    Sketcher.Constraint("Coincident", 6, 2, 7, 1),
    Sketcher.Constraint("Coincident", 7, 2, 0, 1),
    Sketcher.Constraint("Horizontal", 0),
    Sketcher.Constraint("Vertical", 1),
    Sketcher.Constraint("Horizontal", 2),
    Sketcher.Constraint("Horizontal", 4),
    Sketcher.Constraint("Horizontal", 6),
    Sketcher.Constraint("Vertical", 7),
    Sketcher.Constraint("Equal", 3, 5),
    Sketcher.Constraint("Horizontal", 5, 3, 1, 2),
    Sketcher.Constraint("Horizontal", 2, 2, 5, 1),
    Sketcher.Constraint("Radius", 3, Q("0.78 in")),
    Sketcher.Constraint("DistanceX", 2, 1, 2, 2, Q("0.51 in")),
    Sketcher.Constraint("DistanceX", 4, 1, 4, 2, Q("0.79 in")),
    Sketcher.Constraint("DistanceX", 0, 2, 0, 1, Q("3.625 in")),
    Sketcher.Constraint("DistanceY", 1, 2, 1, 1, Q("1.238 in")),
    Sketcher.Constraint("DistanceX", 3, 3, -1, 1, Q("0.54 in")),
    Sketcher.Constraint("DistanceY", 3, 3, -1, 1, Q("0.94 in")),
])
pocket4 = body4.newObject("PartDesign::Pocket", "Pocket003")
pocket4.Profile = sketch15
pocket4.Length = Q("0.25 in")
pocket4.Reversed = True

doc.recompute()
